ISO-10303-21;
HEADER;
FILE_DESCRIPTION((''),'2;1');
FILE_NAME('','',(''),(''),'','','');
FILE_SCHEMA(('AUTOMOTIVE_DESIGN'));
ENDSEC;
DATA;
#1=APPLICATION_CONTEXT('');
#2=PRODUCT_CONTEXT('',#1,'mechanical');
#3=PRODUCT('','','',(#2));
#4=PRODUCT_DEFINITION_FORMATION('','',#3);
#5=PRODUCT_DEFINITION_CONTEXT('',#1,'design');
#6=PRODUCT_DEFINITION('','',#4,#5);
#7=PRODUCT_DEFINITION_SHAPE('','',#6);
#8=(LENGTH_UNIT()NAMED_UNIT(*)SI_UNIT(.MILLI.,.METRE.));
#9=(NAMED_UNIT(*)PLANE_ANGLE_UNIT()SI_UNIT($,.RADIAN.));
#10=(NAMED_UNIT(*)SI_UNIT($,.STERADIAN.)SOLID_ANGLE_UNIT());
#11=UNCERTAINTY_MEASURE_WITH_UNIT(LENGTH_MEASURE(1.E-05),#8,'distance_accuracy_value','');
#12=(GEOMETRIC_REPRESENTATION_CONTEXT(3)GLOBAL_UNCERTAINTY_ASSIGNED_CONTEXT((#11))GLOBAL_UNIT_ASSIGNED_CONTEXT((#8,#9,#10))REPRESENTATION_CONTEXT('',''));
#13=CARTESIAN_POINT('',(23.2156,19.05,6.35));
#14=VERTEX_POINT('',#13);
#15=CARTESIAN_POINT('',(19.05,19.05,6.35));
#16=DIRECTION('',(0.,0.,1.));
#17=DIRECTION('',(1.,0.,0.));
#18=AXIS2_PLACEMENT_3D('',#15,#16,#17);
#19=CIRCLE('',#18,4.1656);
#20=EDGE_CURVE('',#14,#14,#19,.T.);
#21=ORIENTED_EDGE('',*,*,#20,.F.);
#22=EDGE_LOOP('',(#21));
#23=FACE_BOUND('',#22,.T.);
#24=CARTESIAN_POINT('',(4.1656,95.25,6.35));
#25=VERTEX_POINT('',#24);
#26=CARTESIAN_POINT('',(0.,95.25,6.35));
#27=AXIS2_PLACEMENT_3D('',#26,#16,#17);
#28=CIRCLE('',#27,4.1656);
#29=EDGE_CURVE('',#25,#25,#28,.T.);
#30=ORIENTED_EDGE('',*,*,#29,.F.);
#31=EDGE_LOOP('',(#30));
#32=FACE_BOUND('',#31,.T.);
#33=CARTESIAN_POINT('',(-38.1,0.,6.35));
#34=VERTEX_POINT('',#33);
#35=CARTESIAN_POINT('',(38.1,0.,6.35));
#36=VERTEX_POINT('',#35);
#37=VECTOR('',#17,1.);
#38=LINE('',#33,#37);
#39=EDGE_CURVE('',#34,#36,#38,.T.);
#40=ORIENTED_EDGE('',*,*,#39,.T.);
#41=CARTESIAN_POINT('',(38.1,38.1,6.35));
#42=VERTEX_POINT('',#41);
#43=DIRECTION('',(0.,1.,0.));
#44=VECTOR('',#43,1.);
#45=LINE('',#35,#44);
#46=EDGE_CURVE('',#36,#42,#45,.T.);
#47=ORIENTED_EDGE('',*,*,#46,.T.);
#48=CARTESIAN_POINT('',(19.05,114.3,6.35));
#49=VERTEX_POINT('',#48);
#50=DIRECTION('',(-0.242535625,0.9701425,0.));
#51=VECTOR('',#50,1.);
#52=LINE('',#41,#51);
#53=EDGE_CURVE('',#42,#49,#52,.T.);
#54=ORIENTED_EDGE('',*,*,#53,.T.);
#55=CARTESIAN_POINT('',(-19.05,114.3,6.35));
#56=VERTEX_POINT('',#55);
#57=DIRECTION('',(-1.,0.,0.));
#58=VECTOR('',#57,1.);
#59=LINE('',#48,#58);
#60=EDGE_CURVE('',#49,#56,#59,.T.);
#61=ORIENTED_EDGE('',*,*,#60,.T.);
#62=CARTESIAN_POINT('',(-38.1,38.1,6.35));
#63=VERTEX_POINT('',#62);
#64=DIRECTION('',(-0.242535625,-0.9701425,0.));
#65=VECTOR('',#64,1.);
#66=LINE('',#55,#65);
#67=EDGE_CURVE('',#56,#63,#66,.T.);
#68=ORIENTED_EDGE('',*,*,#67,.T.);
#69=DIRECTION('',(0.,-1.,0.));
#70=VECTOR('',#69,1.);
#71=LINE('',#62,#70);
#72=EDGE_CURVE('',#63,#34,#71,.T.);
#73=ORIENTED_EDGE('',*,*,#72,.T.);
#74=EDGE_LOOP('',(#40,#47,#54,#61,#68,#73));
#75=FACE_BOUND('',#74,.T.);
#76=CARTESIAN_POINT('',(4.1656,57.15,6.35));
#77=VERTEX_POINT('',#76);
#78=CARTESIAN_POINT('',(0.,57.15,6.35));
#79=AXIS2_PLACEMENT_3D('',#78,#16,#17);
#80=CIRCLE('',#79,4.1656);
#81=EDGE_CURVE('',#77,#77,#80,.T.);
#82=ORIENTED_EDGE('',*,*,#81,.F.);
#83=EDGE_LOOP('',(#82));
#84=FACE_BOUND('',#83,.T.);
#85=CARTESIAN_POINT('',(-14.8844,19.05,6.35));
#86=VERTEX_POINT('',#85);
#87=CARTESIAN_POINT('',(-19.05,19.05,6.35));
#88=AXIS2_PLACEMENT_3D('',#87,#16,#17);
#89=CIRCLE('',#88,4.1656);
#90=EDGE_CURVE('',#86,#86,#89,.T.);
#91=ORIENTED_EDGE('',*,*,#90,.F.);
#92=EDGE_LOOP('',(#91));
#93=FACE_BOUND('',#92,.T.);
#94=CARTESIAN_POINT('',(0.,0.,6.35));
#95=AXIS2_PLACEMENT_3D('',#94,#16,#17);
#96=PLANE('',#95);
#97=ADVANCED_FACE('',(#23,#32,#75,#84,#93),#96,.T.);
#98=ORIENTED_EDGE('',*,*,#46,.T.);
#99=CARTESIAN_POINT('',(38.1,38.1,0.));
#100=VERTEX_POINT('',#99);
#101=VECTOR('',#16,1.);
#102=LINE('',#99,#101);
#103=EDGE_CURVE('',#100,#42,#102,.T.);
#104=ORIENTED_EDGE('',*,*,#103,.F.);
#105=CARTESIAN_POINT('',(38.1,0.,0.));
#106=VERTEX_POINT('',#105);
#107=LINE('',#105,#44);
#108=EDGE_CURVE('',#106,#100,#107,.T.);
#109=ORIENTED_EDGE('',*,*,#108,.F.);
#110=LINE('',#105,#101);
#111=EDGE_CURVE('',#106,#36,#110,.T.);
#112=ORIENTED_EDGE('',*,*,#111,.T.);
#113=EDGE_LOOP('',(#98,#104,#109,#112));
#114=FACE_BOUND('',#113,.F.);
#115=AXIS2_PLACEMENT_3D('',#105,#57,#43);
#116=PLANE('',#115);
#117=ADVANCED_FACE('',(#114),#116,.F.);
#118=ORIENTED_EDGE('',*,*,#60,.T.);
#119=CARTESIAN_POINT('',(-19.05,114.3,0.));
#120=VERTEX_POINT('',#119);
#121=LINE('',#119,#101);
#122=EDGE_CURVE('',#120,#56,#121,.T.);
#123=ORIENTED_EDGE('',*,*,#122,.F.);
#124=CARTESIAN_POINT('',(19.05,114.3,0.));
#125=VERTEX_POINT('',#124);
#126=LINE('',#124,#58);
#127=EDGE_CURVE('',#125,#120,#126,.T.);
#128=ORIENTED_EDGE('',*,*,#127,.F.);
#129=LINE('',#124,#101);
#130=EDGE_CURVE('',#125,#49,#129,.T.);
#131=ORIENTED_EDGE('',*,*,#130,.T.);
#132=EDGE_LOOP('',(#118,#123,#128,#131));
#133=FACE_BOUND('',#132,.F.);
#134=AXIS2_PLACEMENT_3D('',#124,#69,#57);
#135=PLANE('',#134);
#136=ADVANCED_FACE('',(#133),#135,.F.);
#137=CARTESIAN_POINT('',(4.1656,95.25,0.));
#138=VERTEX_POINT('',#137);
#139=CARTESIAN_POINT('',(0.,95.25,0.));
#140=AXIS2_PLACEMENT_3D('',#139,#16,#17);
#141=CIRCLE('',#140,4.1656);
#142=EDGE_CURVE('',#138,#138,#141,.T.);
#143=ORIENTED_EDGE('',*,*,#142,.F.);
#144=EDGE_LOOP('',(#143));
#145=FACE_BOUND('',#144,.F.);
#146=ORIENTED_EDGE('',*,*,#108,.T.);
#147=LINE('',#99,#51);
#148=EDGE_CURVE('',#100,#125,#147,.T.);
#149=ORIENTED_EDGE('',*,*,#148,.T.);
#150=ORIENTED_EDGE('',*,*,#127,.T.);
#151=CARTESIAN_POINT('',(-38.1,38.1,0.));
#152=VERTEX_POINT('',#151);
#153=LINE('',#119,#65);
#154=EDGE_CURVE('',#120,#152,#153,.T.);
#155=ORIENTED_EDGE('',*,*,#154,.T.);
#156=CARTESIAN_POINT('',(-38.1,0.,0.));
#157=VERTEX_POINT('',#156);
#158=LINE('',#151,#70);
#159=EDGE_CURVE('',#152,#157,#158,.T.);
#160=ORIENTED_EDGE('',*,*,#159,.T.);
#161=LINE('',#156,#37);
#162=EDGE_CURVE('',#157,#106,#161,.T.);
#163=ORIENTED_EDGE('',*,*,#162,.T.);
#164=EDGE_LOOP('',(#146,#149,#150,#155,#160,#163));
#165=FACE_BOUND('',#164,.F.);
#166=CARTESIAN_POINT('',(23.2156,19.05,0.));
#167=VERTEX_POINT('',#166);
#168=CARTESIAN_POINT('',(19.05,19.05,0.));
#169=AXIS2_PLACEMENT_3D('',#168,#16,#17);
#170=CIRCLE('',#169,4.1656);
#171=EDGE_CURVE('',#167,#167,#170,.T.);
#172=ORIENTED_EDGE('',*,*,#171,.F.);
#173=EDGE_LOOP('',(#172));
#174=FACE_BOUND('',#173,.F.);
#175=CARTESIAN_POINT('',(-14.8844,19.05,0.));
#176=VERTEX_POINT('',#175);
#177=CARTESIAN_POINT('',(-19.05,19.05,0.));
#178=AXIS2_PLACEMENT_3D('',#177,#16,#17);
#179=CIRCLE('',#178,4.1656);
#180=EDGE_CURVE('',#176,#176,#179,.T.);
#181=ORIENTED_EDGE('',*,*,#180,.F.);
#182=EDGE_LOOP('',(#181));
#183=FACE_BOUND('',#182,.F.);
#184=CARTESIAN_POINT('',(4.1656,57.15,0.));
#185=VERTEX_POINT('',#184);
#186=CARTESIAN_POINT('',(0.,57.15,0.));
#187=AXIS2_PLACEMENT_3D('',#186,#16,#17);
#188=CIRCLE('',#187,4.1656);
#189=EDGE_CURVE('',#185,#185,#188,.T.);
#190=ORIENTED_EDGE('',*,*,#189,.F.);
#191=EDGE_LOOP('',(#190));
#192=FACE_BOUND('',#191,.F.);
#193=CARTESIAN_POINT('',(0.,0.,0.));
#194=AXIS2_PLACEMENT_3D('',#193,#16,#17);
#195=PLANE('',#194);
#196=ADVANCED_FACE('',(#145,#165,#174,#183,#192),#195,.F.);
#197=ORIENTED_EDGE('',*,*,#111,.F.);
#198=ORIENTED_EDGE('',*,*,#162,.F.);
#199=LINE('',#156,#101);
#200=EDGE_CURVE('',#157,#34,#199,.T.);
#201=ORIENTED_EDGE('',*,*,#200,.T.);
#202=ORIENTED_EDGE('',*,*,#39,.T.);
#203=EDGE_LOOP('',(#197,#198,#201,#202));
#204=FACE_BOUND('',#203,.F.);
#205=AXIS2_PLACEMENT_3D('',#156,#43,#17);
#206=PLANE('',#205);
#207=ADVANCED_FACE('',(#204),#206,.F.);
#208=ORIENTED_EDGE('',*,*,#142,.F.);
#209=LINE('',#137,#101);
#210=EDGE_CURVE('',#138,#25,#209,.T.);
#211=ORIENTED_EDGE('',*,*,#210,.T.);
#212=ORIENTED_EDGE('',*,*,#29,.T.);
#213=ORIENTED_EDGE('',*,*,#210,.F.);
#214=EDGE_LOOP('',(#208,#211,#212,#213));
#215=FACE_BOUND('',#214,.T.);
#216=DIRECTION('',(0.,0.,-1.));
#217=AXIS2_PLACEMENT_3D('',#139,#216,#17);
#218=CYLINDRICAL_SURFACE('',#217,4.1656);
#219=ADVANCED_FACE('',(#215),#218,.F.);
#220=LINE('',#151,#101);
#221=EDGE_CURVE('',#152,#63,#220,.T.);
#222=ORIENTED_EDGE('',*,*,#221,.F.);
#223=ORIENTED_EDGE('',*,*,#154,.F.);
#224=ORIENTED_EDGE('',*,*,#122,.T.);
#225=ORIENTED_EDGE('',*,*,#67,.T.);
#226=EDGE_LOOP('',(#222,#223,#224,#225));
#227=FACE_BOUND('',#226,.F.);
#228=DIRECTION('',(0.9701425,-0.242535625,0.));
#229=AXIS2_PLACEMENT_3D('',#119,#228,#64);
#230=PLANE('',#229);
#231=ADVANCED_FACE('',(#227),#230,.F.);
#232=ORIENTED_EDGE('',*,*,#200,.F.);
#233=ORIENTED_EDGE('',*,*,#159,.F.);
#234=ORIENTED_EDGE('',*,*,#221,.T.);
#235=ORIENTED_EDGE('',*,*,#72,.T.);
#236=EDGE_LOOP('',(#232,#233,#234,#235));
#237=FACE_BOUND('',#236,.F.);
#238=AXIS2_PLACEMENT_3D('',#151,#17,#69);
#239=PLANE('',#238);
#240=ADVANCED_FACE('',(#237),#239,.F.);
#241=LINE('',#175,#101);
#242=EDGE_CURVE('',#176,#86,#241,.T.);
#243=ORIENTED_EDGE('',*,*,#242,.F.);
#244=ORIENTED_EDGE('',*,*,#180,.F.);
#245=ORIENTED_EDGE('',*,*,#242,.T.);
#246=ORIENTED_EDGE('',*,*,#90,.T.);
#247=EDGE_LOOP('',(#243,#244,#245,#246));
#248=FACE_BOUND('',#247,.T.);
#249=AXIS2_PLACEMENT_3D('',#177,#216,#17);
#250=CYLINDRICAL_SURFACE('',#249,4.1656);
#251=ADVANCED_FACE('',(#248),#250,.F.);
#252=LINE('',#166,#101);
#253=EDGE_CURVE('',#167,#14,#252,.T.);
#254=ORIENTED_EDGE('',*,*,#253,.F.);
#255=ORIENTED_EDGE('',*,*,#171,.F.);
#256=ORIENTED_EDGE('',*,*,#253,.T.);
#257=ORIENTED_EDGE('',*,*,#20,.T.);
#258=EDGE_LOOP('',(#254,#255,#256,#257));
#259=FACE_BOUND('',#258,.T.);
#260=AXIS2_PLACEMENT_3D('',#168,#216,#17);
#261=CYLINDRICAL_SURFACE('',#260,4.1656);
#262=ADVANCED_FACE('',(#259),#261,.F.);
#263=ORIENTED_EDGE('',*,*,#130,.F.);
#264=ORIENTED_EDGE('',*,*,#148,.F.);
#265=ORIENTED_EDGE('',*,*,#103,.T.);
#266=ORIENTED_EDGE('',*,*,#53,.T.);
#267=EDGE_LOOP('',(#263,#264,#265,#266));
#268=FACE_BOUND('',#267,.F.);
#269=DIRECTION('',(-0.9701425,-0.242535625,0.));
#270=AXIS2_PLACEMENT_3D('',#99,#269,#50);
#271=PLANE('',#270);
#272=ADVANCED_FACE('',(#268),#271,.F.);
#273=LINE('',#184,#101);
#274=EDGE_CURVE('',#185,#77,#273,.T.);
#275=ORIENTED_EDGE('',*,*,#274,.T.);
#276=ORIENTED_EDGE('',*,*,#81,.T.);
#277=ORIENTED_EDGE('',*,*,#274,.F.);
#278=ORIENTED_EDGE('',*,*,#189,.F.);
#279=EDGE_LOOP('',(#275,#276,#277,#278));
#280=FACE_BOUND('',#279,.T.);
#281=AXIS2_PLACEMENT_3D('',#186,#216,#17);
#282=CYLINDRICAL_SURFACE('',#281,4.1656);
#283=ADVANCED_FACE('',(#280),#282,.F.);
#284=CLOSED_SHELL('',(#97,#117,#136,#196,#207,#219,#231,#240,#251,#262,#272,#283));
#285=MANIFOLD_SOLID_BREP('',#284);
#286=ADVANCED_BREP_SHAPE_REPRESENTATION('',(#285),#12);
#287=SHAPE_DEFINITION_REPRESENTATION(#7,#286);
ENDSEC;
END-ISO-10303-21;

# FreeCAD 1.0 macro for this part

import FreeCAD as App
import Part
import Sketcher
from FreeCAD import Vector
Q = App.Units.Quantity

doc = App.newDocument("Part")
body = doc.addObject("PartDesign::Body", "Body")

sketch1 = body.newObject("Sketcher::SketchObject", "Sketch")
sketch1.AttachmentSupport = (doc.getObject("XY_Plane"), [""])
sketch1.MapMode = "FlatFace"
sketch1.addGeometry([
    Part.LineSegment(Vector(-19.05, 114.3, 0), Vector(-38.1, 38.1, 0)),
    Part.LineSegment(Vector(-38.1, 38.1, 0), Vector(-38.1, 0, 0)),
    Part.LineSegment(Vector(-38.1, 0, 0), Vector(38.1, 0, 0)),
    Part.LineSegment(Vector(38.1, 0, 0), Vector(38.1, 38.1, 0)),
    Part.LineSegment(Vector(38.1, 38.1, 0), Vector(19.05, 114.3, 0)),
    Part.LineSegment(Vector(19.05, 114.3, 0), Vector(-19.05, 114.3, 0)),
    Part.Circle(Vector(-19.05, 19.05, 0), Vector(0, 0, 1), 4.1656),
    Part.Circle(Vector(19.05, 19.05, 0), Vector(0, 0, 1), 4.1656),
    Part.Circle(Vector(0, 57.15, 0), Vector(0, 0, 1), 4.1656),
    Part.Circle(Vector(0, 95.25, 0), Vector(0, 0, 1), 4.1656),
], False)
sketch1.addConstraint([
    Sketcher.Constraint("Coincident", 0, 2, 1, 1),
    Sketcher.Constraint("Coincident", 1, 2, 2, 1),
    Sketcher.Constraint("Coincident", 2, 2, 3, 1),
    Sketcher.Constraint("Coincident", 3, 2, 4, 1),
    Sketcher.Constraint("Coincident", 4, 2, 5, 1),
    Sketcher.Constraint("Coincident", 5, 2, 0, 1),
    Sketcher.Constraint("Vertical", 1),
    Sketcher.Constraint("Horizontal", 2),
    Sketcher.Constraint("Vertical", 3),
    Sketcher.Constraint("Horizontal", 5),
    Sketcher.Constraint("Equal", 6, 7),
    Sketcher.Constraint("Equal", 7, 8),
    Sketcher.Constraint("Equal", 8, 9),
    Sketcher.Constraint("Symmetric", 1, 2, 2, 2, -1, 1),
    Sketcher.Constraint("Symmetric", 6, 3, 7, 3, -2),
    Sketcher.Constraint("PointOnObject", 8, 3, -2),
    Sketcher.Constraint("PointOnObject", 9, 3, -2),
    Sketcher.Constraint("Horizontal", 0, 2, 3, 2),
    Sketcher.Constraint("Vertical", 7, 3, 4, 2),
    Sketcher.Constraint("Vertical", 6, 3, 5, 2),
    Sketcher.Constraint("Equal", 5, 1),
    Sketcher.Constraint("DistanceX", 2, 1, 2, 2, Q("3 in")),
    Sketcher.Constraint("Diameter", 6, Q("0.328 in")),
    Sketcher.Constraint("DistanceX", 5, 2, 5, 1, Q("1.5 in")),
    Sketcher.Constraint("DistanceY", 6, 3, 9, 3, Q("3 in")),
    Sketcher.Constraint("DistanceY", 3, 2, 4, 2, Q("3 in")),
    Sketcher.Constraint("DistanceY", 6, 3, 8, 3, Q("1.5 in")),
    Sketcher.Constraint("DistanceY", -1, 1, 6, 3, Q("0.75 in")),
])
pad1 = body.newObject("PartDesign::Pad", "Pad")
pad1.Profile = sketch1
pad1.Length = Q("0.25 in")

doc.recompute()
